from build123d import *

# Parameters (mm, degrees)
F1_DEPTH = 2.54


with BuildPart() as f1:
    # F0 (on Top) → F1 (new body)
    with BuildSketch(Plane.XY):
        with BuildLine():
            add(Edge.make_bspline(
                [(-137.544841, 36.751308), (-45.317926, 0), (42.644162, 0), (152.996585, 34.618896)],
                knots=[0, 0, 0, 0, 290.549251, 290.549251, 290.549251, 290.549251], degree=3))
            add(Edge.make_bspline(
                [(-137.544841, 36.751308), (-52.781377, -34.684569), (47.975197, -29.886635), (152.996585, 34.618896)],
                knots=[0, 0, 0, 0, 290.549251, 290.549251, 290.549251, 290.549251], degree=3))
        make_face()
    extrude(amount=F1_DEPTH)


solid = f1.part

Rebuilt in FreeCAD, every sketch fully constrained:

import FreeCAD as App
import Part
import Sketcher
from FreeCAD import Vector
Q = App.Units.Quantity

doc = App.newDocument("Part")
body = doc.addObject("PartDesign::Body", "Body")

# Sketch on XY plane
sketch1 = body.newObject("Sketcher::SketchObject", "Sketch")
sketch1.AttachmentSupport = (doc.getObject("XY_Plane"), [""])
sketch1.MapMode = "FlatFace"
sketch1.addGeometry([
    Part.BSplineCurve([Vector(-137.544841, 36.751308, 0), Vector(-45.317926, 0, 0), Vector(42.644162, 0, 0), Vector(152.996585, 34.618896, 0)], [4, 4], [0, 290.549251], False, 3, [1, 1, 1, 1], False),
    Part.BSplineCurve([Vector(-137.544841, 36.751308, 0), Vector(-52.781377, -34.684569, 0), Vector(47.975197, -29.886635, 0), Vector(152.996585, 34.618896, 0)], [4, 4], [0, 290.549251], False, 3, [1, 1, 1, 1], False),
], False)
sketch1.addConstraint([
    Sketcher.Constraint("Block", 0),
    Sketcher.Constraint("Block", 1),
])
pad1 = body.newObject("PartDesign::Pad", "Pad")
pad1.Profile = sketch1
pad1.Length = Q("0.1 in")

doc.recompute()
